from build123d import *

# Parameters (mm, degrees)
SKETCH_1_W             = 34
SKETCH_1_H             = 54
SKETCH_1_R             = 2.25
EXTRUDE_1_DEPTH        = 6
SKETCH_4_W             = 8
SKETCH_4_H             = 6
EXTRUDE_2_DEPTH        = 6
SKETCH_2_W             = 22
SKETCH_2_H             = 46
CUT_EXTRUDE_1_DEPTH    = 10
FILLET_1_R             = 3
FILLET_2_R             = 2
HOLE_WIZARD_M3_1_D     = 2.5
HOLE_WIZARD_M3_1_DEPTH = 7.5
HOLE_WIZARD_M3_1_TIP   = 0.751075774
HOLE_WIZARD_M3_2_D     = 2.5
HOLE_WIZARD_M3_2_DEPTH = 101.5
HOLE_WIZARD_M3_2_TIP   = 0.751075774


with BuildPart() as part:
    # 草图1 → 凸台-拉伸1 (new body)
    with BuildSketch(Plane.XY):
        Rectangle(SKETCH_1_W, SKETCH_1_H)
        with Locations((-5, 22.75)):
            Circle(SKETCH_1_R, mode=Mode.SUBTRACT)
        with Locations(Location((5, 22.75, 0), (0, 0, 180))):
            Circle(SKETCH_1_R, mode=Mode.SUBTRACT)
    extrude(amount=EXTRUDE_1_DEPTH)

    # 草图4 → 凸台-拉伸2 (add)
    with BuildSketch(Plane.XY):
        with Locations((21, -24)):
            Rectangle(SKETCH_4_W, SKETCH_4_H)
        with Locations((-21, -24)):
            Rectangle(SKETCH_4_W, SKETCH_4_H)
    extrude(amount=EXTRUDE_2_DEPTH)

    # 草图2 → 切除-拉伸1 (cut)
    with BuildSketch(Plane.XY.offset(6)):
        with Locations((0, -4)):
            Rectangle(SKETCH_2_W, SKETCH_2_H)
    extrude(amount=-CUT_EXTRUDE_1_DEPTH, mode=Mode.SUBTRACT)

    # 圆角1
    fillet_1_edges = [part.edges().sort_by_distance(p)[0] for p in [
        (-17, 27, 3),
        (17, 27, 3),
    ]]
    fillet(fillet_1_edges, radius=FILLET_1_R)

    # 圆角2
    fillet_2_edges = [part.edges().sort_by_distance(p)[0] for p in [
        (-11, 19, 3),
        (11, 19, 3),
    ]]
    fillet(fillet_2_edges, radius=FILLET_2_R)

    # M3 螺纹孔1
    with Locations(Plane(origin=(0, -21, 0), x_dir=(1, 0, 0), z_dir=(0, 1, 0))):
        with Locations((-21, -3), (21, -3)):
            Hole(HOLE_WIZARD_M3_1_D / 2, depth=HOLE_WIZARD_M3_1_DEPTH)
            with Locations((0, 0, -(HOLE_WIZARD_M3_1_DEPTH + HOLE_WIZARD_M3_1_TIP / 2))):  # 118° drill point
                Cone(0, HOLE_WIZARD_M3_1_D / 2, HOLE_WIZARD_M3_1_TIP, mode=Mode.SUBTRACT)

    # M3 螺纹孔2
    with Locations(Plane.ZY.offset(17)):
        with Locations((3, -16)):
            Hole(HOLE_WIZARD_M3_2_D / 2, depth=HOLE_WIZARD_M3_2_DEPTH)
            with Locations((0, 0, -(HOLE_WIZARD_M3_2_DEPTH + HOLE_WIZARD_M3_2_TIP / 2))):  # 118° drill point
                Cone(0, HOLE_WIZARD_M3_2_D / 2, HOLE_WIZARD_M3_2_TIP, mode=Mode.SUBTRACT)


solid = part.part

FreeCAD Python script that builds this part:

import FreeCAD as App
import Part
import Sketcher
from FreeCAD import Vector


def edges_at(feature, points):
    """Names of the edges that pass closest to the given points."""
    edges = feature.Shape.Edges
    near = lambda p: min(range(len(edges)), key=lambda i: edges[i].distToShape(Part.Vertex(*p))[0])
    return sorted({f"Edge{near(p) + 1}" for p in points})


def add_polygon(sketch, points):
    """Adds a closed chain of lines whose ends are joined by coincident constraints."""
    first, n = sketch.GeometryCount, len(points)
    for a, b in zip(points, points[1:] + points[:1]):
        sketch.addGeometry(Part.LineSegment(App.Vector(*a, 0), App.Vector(*b, 0)), False)
    for i in range(n):
        sketch.addConstraint(Sketcher.Constraint("Coincident", first + i, 2, first + (i + 1) % n, 1))

doc = App.newDocument("Part")
body = doc.addObject("PartDesign::Body", "Body")

# Sketch on XY plane
sketch1 = body.newObject("Sketcher::SketchObject", "Sketch")
sketch1.AttachmentSupport = (doc.getObject("XY_Plane"), [""])
sketch1.MapMode = "FlatFace"
add_polygon(sketch1, [(-17, 27), (-17, -27), (17, -27), (17, 27)])  # lines 0-3
sketch1.addGeometry(Part.Circle(Vector(-5, 22.8, 0), Vector(0, 0, 1), 2.2), False)  # 4
sketch1.addGeometry(Part.Circle(Vector(5, 22.8, 0), Vector(0, 0, 1), 2.2), False)  # 5
sketch1.addConstraint([
    Sketcher.Constraint("Vertical", 0),
    Sketcher.Constraint("Horizontal", 1),
    Sketcher.Constraint("Vertical", 2),
    Sketcher.Constraint("Horizontal", 3),
    Sketcher.Constraint("Equal", 4, 5),
    Sketcher.Constraint("Symmetric", 0, 2, 2, 2, -1, 1),
    Sketcher.Constraint("Symmetric", 4, 3, 5, 3, -2),
    Sketcher.Constraint("Diameter", 4, 4.5),
    Sketcher.Constraint("DistanceX", 1, 1, 1, 2, 34.0),
    Sketcher.Constraint("DistanceY", 0, 2, 0, 1, 54.0),
    Sketcher.Constraint("DistanceX", 4, 3, -1, 1, 5.0),
    Sketcher.Constraint("DistanceY", -1, 1, 4, 3, 22.75),
])
pad1 = body.newObject("PartDesign::Pad", "Pad")
pad1.Profile = sketch1
pad1.Length = 6

# Sketch on XY plane
sketch2 = body.newObject("Sketcher::SketchObject", "Sketch001")
sketch2.AttachmentSupport = (doc.getObject("XY_Plane"), [""])
sketch2.MapMode = "FlatFace"
add_polygon(sketch2, [(17, -21), (17, -27), (25, -27), (25, -21)])  # lines 0-3
add_polygon(sketch2, [(-25, -21), (-25, -27), (-17, -27), (-17, -21)])  # lines 4-7
sketch2.addConstraint([
    Sketcher.Constraint("Vertical", 0),
    Sketcher.Constraint("Horizontal", 1),
    Sketcher.Constraint("Vertical", 2),
    Sketcher.Constraint("Horizontal", 3),
    Sketcher.Constraint("Vertical", 4),
    Sketcher.Constraint("Horizontal", 5),
    Sketcher.Constraint("Vertical", 6),
    Sketcher.Constraint("Horizontal", 7),
    Sketcher.Constraint("Symmetric", 1, 2, 4, 2, -2),
    Sketcher.Constraint("Symmetric", 3, 2, 6, 2, -2),
    Sketcher.Constraint("DistanceX", 1, 1, 1, 2, 8.0),
    Sketcher.Constraint("DistanceY", 0, 2, 0, 1, 6.0),
    Sketcher.Constraint("DistanceX", -1, 1, 0, 2, 17.0),
    Sketcher.Constraint("DistanceY", 0, 2, -1, 1, 27.0),
])
pad2 = body.newObject("PartDesign::Pad", "Pad001")
pad2.Profile = sketch2
pad2.Length = 6

# Sketch on XY plane
sketch3 = body.newObject("Sketcher::SketchObject", "Sketch002")
sketch3.AttachmentSupport = (doc.getObject("XY_Plane"), [""])
sketch3.MapMode = "FlatFace"
sketch3.AttachmentOffset = App.Placement(Vector(0, 0, 6), App.Rotation())
add_polygon(sketch3, [(-11, 19), (-11, -27), (11, -27), (11, 19)])  # lines 0-3
sketch3.addConstraint([
    Sketcher.Constraint("Vertical", 0),
    Sketcher.Constraint("Horizontal", 1),
    Sketcher.Constraint("Vertical", 2),
    Sketcher.Constraint("Horizontal", 3),
    Sketcher.Constraint("DistanceX", 1, 1, 1, 2, 22.0),
    Sketcher.Constraint("DistanceY", 0, 2, 0, 1, 46.0),
    Sketcher.Constraint("DistanceX", 0, 2, -1, 1, 11.0),
    Sketcher.Constraint("DistanceY", 0, 2, -1, 1, 27.0),
])
pocket1 = body.newObject("PartDesign::Pocket", "Pocket")
pocket1.Profile = sketch3
pocket1.Length = 10
doc.recompute()

fillet = body.newObject("PartDesign::Fillet", "Fillet")
fillet.Base = (pocket1, edges_at(pocket1, [(-17, 27, 3), (17, 27, 3)]))
fillet.Radius = 3
doc.recompute()

fillet2 = body.newObject("PartDesign::Fillet", "Fillet001")
fillet2.Base = (fillet, edges_at(fillet, [(-11, 19, 3), (11, 19, 3)]))
fillet2.Radius = 2

# Sketch on XZ plane
sketch4 = body.newObject("Sketcher::SketchObject", "Sketch003")
sketch4.AttachmentSupport = (doc.getObject("XZ_Plane"), [""])
sketch4.MapMode = "FlatFace"
sketch4.AttachmentOffset = App.Placement(Vector(0, 0, 21), App.Rotation())
sketch4.addGeometry([
    Part.Circle(Vector(-21, 3, 0), Vector(0, 0, 1), 1.2),
    Part.Circle(Vector(21, 3, 0), Vector(0, 0, 1), 1.2),
], False)
sketch4.addConstraint([
    Sketcher.Constraint("Equal", 0, 1),
    Sketcher.Constraint("Symmetric", 0, 3, 1, 3, -2),
    Sketcher.Constraint("Diameter", 0, 2.5),
    Sketcher.Constraint("DistanceX", 0, 3, -1, 1, 21.0),
    Sketcher.Constraint("DistanceY", -1, 1, 0, 3, 3.0),
])
doc.recompute()
hole = body.newObject("PartDesign::Hole", "Hole")
hole.Profile = sketch4
hole.ThreadType = "None"
hole.Diameter = 2.5
hole.DepthType = "Dimension"
hole.Depth = 7.5
hole.DrillPoint = "Angled"
hole.DrillPointAngle = 118
hole.Reversed = True

# Sketch on YZ plane
sketch5 = body.newObject("Sketcher::SketchObject", "Sketch004")
sketch5.AttachmentSupport = (doc.getObject("YZ_Plane"), [""])
sketch5.MapMode = "FlatFace"
sketch5.AttachmentOffset = App.Placement(Vector(0, 0, -17), App.Rotation())
sketch5.addGeometry(Part.Circle(Vector(-16, 3, 0), Vector(0, 0, 1), 1.2), False)
sketch5.addConstraint([
    Sketcher.Constraint("Diameter", 0, 2.5),
    Sketcher.Constraint("DistanceX", 0, 3, -1, 1, 16.0),
    Sketcher.Constraint("DistanceY", -1, 1, 0, 3, 3.0),
])
doc.recompute()
hole2 = body.newObject("PartDesign::Hole", "Hole001")
hole2.Profile = sketch5
hole2.ThreadType = "None"
hole2.Diameter = 2.5
hole2.DepthType = "Dimension"
hole2.Depth = 101.5
hole2.DrillPoint = "Angled"
hole2.DrillPointAngle = 118
hole2.Reversed = True

doc.recompute()
